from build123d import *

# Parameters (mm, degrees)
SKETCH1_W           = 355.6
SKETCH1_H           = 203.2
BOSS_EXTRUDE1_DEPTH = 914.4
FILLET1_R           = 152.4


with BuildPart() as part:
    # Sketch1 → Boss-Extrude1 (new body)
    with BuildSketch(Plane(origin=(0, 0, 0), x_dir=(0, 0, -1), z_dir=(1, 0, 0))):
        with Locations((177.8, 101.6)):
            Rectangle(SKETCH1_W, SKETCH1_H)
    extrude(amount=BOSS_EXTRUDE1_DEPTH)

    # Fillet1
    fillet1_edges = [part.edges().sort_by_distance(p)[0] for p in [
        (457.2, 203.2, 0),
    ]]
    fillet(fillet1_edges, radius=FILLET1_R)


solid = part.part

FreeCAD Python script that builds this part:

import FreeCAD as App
import Part
import Sketcher

V = App.Vector
Q = App.Units.Quantity


def edges_at(feature, points):
    """Names of the edges that pass closest to the given points."""
    edges = feature.Shape.Edges
    near = lambda p: min(range(len(edges)), key=lambda i: edges[i].distToShape(Part.Vertex(*p))[0])
    return sorted({f"Edge{near(p) + 1}" for p in points})

doc = App.newDocument("Part")
params = doc.addObject("Spreadsheet::Sheet", "Params")
for row, (alias, value) in enumerate([
    ("sketch1_width", "8 in"),
    ("sketch1_height", "14 in"),
    ("pad1_length", "36 in"),
    ("fillet_radius", "6 in"),
], start=1):
    params.set(f"A{row}", alias)
    params.set(f"B{row}", "=" + value)
    params.setAlias(f"B{row}", alias)

body = doc.addObject("PartDesign::Body", "Body")

# Sketch on YZ plane
sketch1 = body.newObject("Sketcher::SketchObject", "Sketch")
sketch1.AttachmentSupport = (doc.getObject("YZ_Plane"), [""])
sketch1.MapMode = "FlatFace"
sketch1.addGeometry([
    Part.LineSegment(V(203, 0, 0), V(0, 0, 0)),
    Part.LineSegment(V(0, 0, 0), V(0, -356, 0)),
    Part.LineSegment(V(0, -356, 0), V(203, -356, 0)),
    Part.LineSegment(V(203, -356, 0), V(203, 0, 0)),
], False)
sketch1.addConstraint([
    Sketcher.Constraint("Coincident", 0, 2, 1, 1),
    Sketcher.Constraint("Coincident", 1, 2, 2, 1),
    Sketcher.Constraint("Coincident", 2, 2, 3, 1),
    Sketcher.Constraint("Coincident", 3, 2, 0, 1),
    Sketcher.Constraint("Horizontal", 0),
    Sketcher.Constraint("Vertical", 1),
    Sketcher.Constraint("Horizontal", 2),
    Sketcher.Constraint("Vertical", 3),
    Sketcher.Constraint("Coincident", 0, 2, -1, 1),
    Sketcher.Constraint("DistanceX", 0, 2, 0, 1, Q("8 in")),
    Sketcher.Constraint("DistanceY", 1, 2, 1, 1, Q("14 in")),
])
sketch1.setExpression("Constraints[9]", "Params.sketch1_width")
sketch1.setExpression("Constraints[10]", "Params.sketch1_height")
pad1 = body.newObject("PartDesign::Pad", "Pad")
pad1.Profile = sketch1
pad1.setExpression("Length", "Params.pad1_length")
doc.recompute()

fillet = body.newObject("PartDesign::Fillet", "Fillet")
fillet.Base = (pad1, edges_at(pad1, [(457.2, 203.2, 0)]))
fillet.setExpression("Radius", "Params.fillet_radius")

doc.recompute()
